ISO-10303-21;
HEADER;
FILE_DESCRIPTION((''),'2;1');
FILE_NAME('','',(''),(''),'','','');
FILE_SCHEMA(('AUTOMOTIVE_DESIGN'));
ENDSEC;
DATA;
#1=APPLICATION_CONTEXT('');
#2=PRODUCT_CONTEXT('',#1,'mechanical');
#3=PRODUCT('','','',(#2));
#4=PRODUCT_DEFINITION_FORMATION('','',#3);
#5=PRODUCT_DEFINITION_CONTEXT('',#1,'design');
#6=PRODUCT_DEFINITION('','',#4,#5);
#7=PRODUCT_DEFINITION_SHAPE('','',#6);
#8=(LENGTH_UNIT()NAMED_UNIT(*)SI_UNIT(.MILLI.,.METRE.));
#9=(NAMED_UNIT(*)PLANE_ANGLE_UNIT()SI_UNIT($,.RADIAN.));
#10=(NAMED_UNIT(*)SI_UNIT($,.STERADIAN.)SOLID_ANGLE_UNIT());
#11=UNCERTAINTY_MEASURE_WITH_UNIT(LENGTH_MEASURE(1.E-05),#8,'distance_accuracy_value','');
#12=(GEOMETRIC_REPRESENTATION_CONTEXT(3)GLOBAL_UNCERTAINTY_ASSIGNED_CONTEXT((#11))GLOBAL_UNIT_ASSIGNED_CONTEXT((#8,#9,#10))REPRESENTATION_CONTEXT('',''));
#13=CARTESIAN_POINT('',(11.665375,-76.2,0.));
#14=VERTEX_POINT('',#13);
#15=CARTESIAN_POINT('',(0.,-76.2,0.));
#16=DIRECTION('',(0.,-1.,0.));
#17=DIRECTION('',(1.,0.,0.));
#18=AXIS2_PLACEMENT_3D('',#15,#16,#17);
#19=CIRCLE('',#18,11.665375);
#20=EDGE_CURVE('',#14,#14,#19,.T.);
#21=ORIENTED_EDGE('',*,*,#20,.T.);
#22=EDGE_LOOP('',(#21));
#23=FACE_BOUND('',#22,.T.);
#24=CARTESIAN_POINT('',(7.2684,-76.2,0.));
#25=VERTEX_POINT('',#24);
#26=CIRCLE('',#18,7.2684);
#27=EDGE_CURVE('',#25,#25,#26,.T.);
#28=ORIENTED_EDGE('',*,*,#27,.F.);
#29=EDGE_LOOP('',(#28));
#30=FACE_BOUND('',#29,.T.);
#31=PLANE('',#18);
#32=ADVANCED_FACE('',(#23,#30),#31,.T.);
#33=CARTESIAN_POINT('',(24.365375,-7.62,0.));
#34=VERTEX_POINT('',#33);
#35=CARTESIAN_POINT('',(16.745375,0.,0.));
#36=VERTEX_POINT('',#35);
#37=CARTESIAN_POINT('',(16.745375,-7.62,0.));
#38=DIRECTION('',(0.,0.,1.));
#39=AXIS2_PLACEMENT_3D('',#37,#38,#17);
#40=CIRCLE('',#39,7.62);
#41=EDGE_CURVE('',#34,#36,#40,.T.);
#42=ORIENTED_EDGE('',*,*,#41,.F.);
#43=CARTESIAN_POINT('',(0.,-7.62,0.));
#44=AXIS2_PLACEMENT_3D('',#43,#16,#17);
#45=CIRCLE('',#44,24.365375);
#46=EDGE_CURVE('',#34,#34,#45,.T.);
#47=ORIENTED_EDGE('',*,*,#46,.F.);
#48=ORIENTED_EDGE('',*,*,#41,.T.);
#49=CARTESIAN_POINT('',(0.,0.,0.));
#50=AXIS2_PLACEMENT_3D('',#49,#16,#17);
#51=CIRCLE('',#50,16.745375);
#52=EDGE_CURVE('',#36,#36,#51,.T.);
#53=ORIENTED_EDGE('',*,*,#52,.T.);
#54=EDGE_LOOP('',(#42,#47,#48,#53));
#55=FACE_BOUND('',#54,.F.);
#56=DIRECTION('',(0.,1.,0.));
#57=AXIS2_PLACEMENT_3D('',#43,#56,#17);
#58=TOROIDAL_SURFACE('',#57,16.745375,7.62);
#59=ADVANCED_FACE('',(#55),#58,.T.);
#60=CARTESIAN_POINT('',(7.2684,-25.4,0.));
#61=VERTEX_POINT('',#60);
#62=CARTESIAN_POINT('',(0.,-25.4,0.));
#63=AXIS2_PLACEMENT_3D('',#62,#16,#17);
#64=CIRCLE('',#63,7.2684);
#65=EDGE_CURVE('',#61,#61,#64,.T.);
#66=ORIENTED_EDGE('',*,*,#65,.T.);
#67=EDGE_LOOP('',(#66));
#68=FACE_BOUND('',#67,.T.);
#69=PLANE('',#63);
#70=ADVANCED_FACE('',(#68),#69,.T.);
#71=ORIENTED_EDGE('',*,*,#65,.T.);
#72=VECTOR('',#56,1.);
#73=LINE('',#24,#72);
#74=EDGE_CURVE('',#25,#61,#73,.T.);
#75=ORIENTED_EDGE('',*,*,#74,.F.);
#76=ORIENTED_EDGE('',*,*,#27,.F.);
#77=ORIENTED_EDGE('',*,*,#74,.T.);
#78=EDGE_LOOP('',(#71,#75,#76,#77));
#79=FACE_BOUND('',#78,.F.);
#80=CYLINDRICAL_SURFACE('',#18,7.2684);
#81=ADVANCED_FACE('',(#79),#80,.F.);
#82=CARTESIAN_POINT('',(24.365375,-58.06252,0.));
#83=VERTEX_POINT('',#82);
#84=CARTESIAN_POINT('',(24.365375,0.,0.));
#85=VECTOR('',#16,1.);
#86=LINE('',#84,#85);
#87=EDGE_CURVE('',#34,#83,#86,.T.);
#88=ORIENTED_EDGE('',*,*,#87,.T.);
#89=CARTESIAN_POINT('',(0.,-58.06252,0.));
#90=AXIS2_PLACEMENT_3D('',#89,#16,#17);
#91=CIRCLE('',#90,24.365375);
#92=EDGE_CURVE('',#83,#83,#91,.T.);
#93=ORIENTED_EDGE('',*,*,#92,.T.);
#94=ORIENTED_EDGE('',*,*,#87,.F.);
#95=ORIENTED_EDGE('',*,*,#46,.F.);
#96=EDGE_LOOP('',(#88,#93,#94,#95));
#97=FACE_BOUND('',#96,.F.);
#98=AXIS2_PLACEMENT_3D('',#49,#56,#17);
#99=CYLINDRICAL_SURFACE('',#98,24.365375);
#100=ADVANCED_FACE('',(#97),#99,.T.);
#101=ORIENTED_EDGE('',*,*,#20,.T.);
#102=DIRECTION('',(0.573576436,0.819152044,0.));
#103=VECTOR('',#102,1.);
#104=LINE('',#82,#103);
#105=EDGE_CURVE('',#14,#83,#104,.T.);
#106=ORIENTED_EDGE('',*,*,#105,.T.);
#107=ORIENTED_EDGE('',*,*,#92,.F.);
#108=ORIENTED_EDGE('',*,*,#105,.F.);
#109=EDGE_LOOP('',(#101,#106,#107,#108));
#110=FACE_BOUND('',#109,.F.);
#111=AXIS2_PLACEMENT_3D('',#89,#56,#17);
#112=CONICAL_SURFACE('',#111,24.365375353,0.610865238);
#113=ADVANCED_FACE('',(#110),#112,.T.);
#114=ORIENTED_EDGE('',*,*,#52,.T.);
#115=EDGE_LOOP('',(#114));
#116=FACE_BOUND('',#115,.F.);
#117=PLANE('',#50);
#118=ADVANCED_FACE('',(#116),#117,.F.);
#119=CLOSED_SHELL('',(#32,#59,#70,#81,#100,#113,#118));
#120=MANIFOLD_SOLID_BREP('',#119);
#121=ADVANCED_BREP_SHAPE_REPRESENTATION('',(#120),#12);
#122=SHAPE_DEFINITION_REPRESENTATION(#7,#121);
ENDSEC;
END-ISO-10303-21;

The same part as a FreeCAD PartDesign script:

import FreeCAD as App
import Part
import Sketcher
from FreeCAD import Vector
Q = App.Units.Quantity


def edges_at(feature, points):
    """Names of the edges that pass closest to the given points."""
    edges = feature.Shape.Edges
    near = lambda p: min(range(len(edges)), key=lambda i: edges[i].distToShape(Part.Vertex(*p))[0])
    return sorted({f"Edge{near(p) + 1}" for p in points})

doc = App.newDocument("Part")
params = doc.addObject("Spreadsheet::Sheet", "Params")
for row, (alias, value) in enumerate([
    ("pad1_length", "3 in"),
    ("fillet_radius", "0.3 in"),
    ("pocket1_length", "2 in"),
    ("chamfer_size", "0.5 in"),
    ("chamfer_size2", "18.13748 mm"),
], start=1):
    params.set(f"A{row}", alias)
    params.set(f"B{row}", "=" + value)
    params.setAlias(f"B{row}", alias)

body = doc.addObject("PartDesign::Body", "Body")

sketch1 = body.newObject("Sketcher::SketchObject", "Sketch")
sketch1.AttachmentSupport = (doc.getObject("XZ_Plane"), [""])
sketch1.MapMode = "FlatFace"
sketch1.addGeometry(Part.Circle(Vector(0, 0, 0), Vector(0, 0, 1), 24.365375), False)
sketch1.addConstraint([
    Sketcher.Constraint("Coincident", 0, 3, -1, 1),
    Sketcher.Constraint("Diameter", 0, Q("48.730751 mm")),
])
pad1 = body.newObject("PartDesign::Pad", "Pad")
pad1.Profile = sketch1
pad1.setExpression("Length", "Params.pad1_length")
doc.recompute()

fillet = body.newObject("PartDesign::Fillet", "Fillet")
fillet.Base = (pad1, edges_at(pad1, [(-24.365, 0, 0)]))
fillet.setExpression("Radius", "Params.fillet_radius")

sketch2 = body.newObject("Sketcher::SketchObject", "Sketch001")
sketch2.AttachmentSupport = (doc.getObject("XZ_Plane"), [""])
sketch2.MapMode = "FlatFace"
sketch2.AttachmentOffset = App.Placement(Vector(0, 0, 3 * 25.4), App.Rotation())
sketch2.addGeometry(Part.Circle(Vector(0, 0, 0), Vector(0, 0, 1), 7.2684), False)
sketch2.addConstraint([
    Sketcher.Constraint("Coincident", 0, 3, -1, 1),
    Sketcher.Constraint("Diameter", 0, Q("14.5368 mm")),
])
pocket1 = body.newObject("PartDesign::Pocket", "Pocket")
pocket1.Profile = sketch2
pocket1.setExpression("Length", "Params.pocket1_length")
doc.recompute()

chamfer = body.newObject("PartDesign::Chamfer", "Chamfer")
chamfer.Base = (pocket1, edges_at(pocket1, [(-24.365, -76.2, 0)]))
chamfer.ChamferType = "Two distances"
chamfer.setExpression("Size", "Params.chamfer_size")
chamfer.setExpression("Size2", "Params.chamfer_size2")
chamfer.FlipDirection = True

doc.recompute()
